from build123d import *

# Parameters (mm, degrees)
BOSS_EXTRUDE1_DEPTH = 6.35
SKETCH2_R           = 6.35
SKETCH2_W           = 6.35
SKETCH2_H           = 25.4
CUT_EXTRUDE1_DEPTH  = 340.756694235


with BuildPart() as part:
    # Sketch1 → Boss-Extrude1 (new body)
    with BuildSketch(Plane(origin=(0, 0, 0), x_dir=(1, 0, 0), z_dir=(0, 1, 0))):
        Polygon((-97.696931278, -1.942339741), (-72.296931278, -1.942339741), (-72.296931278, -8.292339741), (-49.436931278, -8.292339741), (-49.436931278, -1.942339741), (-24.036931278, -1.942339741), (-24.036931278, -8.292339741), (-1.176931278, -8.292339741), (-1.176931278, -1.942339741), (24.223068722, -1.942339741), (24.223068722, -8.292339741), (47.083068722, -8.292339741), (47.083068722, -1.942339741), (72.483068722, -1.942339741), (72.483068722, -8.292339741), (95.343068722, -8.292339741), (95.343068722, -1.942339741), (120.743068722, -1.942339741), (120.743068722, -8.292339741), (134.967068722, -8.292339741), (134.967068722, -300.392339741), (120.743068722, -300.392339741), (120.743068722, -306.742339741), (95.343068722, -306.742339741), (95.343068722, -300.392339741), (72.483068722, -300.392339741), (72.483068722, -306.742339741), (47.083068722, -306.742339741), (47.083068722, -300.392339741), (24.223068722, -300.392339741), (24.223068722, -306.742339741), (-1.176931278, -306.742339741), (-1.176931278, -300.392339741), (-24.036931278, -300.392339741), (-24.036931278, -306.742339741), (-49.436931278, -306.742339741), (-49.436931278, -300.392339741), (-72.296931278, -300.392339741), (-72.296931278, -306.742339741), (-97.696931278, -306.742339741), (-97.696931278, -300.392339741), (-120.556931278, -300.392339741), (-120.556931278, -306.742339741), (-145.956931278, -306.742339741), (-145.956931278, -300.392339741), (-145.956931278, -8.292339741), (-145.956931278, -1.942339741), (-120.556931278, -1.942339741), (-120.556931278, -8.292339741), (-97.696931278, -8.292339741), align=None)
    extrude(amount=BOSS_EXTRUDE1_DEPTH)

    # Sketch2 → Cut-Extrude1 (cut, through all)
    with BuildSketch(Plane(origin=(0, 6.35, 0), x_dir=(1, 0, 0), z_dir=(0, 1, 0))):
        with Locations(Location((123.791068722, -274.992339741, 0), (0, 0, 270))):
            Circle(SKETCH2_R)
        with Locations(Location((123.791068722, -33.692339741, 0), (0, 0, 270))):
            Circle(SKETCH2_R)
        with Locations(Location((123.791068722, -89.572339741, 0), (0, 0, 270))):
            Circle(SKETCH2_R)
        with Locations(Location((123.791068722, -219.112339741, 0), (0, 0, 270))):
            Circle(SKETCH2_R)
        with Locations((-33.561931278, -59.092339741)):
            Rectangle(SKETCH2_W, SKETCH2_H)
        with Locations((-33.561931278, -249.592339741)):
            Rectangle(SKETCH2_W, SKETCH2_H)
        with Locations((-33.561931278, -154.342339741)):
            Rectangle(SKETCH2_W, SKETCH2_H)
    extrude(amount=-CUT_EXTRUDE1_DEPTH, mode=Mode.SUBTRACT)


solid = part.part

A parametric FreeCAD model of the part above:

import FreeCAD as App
import Part
import Sketcher
from FreeCAD import Vector
Q = App.Units.Quantity

doc = App.newDocument("Part")
body = doc.addObject("PartDesign::Body", "Body")

# Sketch on XZ plane
sketch1 = body.newObject("Sketcher::SketchObject", "Sketch")
sketch1.AttachmentSupport = (doc.getObject("XZ_Plane"), [""])
sketch1.MapMode = "FlatFace"
sketch1.addGeometry(Part.LineSegment(Vector(-72, 2, 0), Vector(-98, 2, 0)), False)
sketch1.addGeometry(Part.LineSegment(Vector(-98, 2, 0), Vector(-98, 8, 0)), False)
sketch1.addGeometry(Part.LineSegment(Vector(-98, 8, 0), Vector(-121, 8, 0)), False)
sketch1.addGeometry(Part.LineSegment(Vector(-121, 8, 0), Vector(-121, 2, 0)), False)
sketch1.addGeometry(Part.LineSegment(Vector(-121, 2, 0), Vector(-146, 2, 0)), False)
sketch1.addGeometry(Part.LineSegment(Vector(-146, 2, 0), Vector(-146, 307, 0)), False)
sketch1.addGeometry(Part.LineSegment(Vector(-146, 307, 0), Vector(-121, 307, 0)), False)
sketch1.addGeometry(Part.LineSegment(Vector(-121, 307, 0), Vector(-121, 300, 0)), False)
sketch1.addGeometry(Part.LineSegment(Vector(-121, 300, 0), Vector(-98, 300, 0)), False)
sketch1.addGeometry(Part.LineSegment(Vector(-98, 300, 0), Vector(-98, 307, 0)), False)
sketch1.addGeometry(Part.LineSegment(Vector(-98, 307, 0), Vector(-72, 307, 0)), False)
sketch1.addGeometry(Part.LineSegment(Vector(-72, 307, 0), Vector(-72, 300, 0)), False)
sketch1.addGeometry(Part.LineSegment(Vector(-72, 300, 0), Vector(-49, 300, 0)), False)
sketch1.addGeometry(Part.LineSegment(Vector(-49, 300, 0), Vector(-49, 307, 0)), False)
sketch1.addGeometry(Part.LineSegment(Vector(-49, 307, 0), Vector(-24, 307, 0)), False)
sketch1.addGeometry(Part.LineSegment(Vector(-24, 307, 0), Vector(-24, 300, 0)), False)
sketch1.addGeometry(Part.LineSegment(Vector(-24, 300, 0), Vector(-1, 300, 0)), False)
sketch1.addGeometry(Part.LineSegment(Vector(-1, 300, 0), Vector(-1, 307, 0)), False)
sketch1.addGeometry(Part.LineSegment(Vector(-1, 307, 0), Vector(24, 307, 0)), False)
sketch1.addGeometry(Part.LineSegment(Vector(24, 307, 0), Vector(24, 300, 0)), False)
sketch1.addGeometry(Part.LineSegment(Vector(24, 300, 0), Vector(47, 300, 0)), False)
sketch1.addGeometry(Part.LineSegment(Vector(47, 300, 0), Vector(47, 307, 0)), False)
sketch1.addGeometry(Part.LineSegment(Vector(47, 307, 0), Vector(72, 307, 0)), False)
sketch1.addGeometry(Part.LineSegment(Vector(72, 307, 0), Vector(72, 300, 0)), False)
sketch1.addGeometry(Part.LineSegment(Vector(72, 300, 0), Vector(95, 300, 0)), False)
sketch1.addGeometry(Part.LineSegment(Vector(95, 300, 0), Vector(95, 307, 0)), False)
sketch1.addGeometry(Part.LineSegment(Vector(95, 307, 0), Vector(121, 307, 0)), False)
sketch1.addGeometry(Part.LineSegment(Vector(121, 307, 0), Vector(121, 300, 0)), False)
sketch1.addGeometry(Part.LineSegment(Vector(121, 300, 0), Vector(135, 300, 0)), False)
sketch1.addGeometry(Part.LineSegment(Vector(135, 300, 0), Vector(135, 8, 0)), False)
sketch1.addGeometry(Part.LineSegment(Vector(135, 8, 0), Vector(121, 8, 0)), False)
sketch1.addGeometry(Part.LineSegment(Vector(121, 8, 0), Vector(121, 2, 0)), False)
sketch1.addGeometry(Part.LineSegment(Vector(121, 2, 0), Vector(95, 2, 0)), False)
sketch1.addGeometry(Part.LineSegment(Vector(95, 2, 0), Vector(95, 8, 0)), False)
sketch1.addGeometry(Part.LineSegment(Vector(95, 8, 0), Vector(72, 8, 0)), False)
sketch1.addGeometry(Part.LineSegment(Vector(72, 8, 0), Vector(72, 2, 0)), False)
sketch1.addGeometry(Part.LineSegment(Vector(72, 2, 0), Vector(47, 2, 0)), False)
sketch1.addGeometry(Part.LineSegment(Vector(47, 2, 0), Vector(47, 8, 0)), False)
sketch1.addGeometry(Part.LineSegment(Vector(47, 8, 0), Vector(24, 8, 0)), False)
sketch1.addGeometry(Part.LineSegment(Vector(24, 8, 0), Vector(24, 2, 0)), False)
sketch1.addGeometry(Part.LineSegment(Vector(24, 2, 0), Vector(-1, 2, 0)), False)
sketch1.addGeometry(Part.LineSegment(Vector(-1, 2, 0), Vector(-1, 8, 0)), False)
sketch1.addGeometry(Part.LineSegment(Vector(-1, 8, 0), Vector(-24, 8, 0)), False)
sketch1.addGeometry(Part.LineSegment(Vector(-24, 8, 0), Vector(-24, 2, 0)), False)
sketch1.addGeometry(Part.LineSegment(Vector(-24, 2, 0), Vector(-49, 2, 0)), False)
sketch1.addGeometry(Part.LineSegment(Vector(-49, 2, 0), Vector(-49, 8, 0)), False)
sketch1.addGeometry(Part.LineSegment(Vector(-49, 8, 0), Vector(-72, 8, 0)), False)
sketch1.addGeometry(Part.LineSegment(Vector(-72, 8, 0), Vector(-72, 2, 0)), False)
sketch1.addConstraint(Sketcher.Constraint("Coincident", 0, 2, 1, 1))
sketch1.addConstraint(Sketcher.Constraint("Coincident", 1, 2, 2, 1))
sketch1.addConstraint(Sketcher.Constraint("Coincident", 2, 2, 3, 1))
sketch1.addConstraint(Sketcher.Constraint("Coincident", 3, 2, 4, 1))
sketch1.addConstraint(Sketcher.Constraint("Coincident", 4, 2, 5, 1))
sketch1.addConstraint(Sketcher.Constraint("Coincident", 5, 2, 6, 1))
sketch1.addConstraint(Sketcher.Constraint("Coincident", 6, 2, 7, 1))
sketch1.addConstraint(Sketcher.Constraint("Coincident", 7, 2, 8, 1))
sketch1.addConstraint(Sketcher.Constraint("Coincident", 8, 2, 9, 1))
sketch1.addConstraint(Sketcher.Constraint("Coincident", 9, 2, 10, 1))
sketch1.addConstraint(Sketcher.Constraint("Coincident", 10, 2, 11, 1))
sketch1.addConstraint(Sketcher.Constraint("Coincident", 11, 2, 12, 1))
sketch1.addConstraint(Sketcher.Constraint("Coincident", 12, 2, 13, 1))
sketch1.addConstraint(Sketcher.Constraint("Coincident", 13, 2, 14, 1))
sketch1.addConstraint(Sketcher.Constraint("Coincident", 14, 2, 15, 1))
sketch1.addConstraint(Sketcher.Constraint("Coincident", 15, 2, 16, 1))
sketch1.addConstraint(Sketcher.Constraint("Coincident", 16, 2, 17, 1))
sketch1.addConstraint(Sketcher.Constraint("Coincident", 17, 2, 18, 1))
sketch1.addConstraint(Sketcher.Constraint("Coincident", 18, 2, 19, 1))
sketch1.addConstraint(Sketcher.Constraint("Coincident", 19, 2, 20, 1))
sketch1.addConstraint(Sketcher.Constraint("Coincident", 20, 2, 21, 1))
sketch1.addConstraint(Sketcher.Constraint("Coincident", 21, 2, 22, 1))
sketch1.addConstraint(Sketcher.Constraint("Coincident", 22, 2, 23, 1))
sketch1.addConstraint(Sketcher.Constraint("Coincident", 23, 2, 24, 1))
sketch1.addConstraint(Sketcher.Constraint("Coincident", 24, 2, 25, 1))
sketch1.addConstraint(Sketcher.Constraint("Coincident", 25, 2, 26, 1))
sketch1.addConstraint(Sketcher.Constraint("Coincident", 26, 2, 27, 1))
sketch1.addConstraint(Sketcher.Constraint("Coincident", 27, 2, 28, 1))
sketch1.addConstraint(Sketcher.Constraint("Coincident", 28, 2, 29, 1))
sketch1.addConstraint(Sketcher.Constraint("Coincident", 29, 2, 30, 1))
sketch1.addConstraint(Sketcher.Constraint("Coincident", 30, 2, 31, 1))
sketch1.addConstraint(Sketcher.Constraint("Coincident", 31, 2, 32, 1))
sketch1.addConstraint(Sketcher.Constraint("Coincident", 32, 2, 33, 1))
sketch1.addConstraint(Sketcher.Constraint("Coincident", 33, 2, 34, 1))
sketch1.addConstraint(Sketcher.Constraint("Coincident", 34, 2, 35, 1))
sketch1.addConstraint(Sketcher.Constraint("Coincident", 35, 2, 36, 1))
sketch1.addConstraint(Sketcher.Constraint("Coincident", 36, 2, 37, 1))
sketch1.addConstraint(Sketcher.Constraint("Coincident", 37, 2, 38, 1))
sketch1.addConstraint(Sketcher.Constraint("Coincident", 38, 2, 39, 1))
sketch1.addConstraint(Sketcher.Constraint("Coincident", 39, 2, 40, 1))
sketch1.addConstraint(Sketcher.Constraint("Coincident", 40, 2, 41, 1))
sketch1.addConstraint(Sketcher.Constraint("Coincident", 41, 2, 42, 1))
sketch1.addConstraint(Sketcher.Constraint("Coincident", 42, 2, 43, 1))
sketch1.addConstraint(Sketcher.Constraint("Coincident", 43, 2, 44, 1))
sketch1.addConstraint(Sketcher.Constraint("Coincident", 44, 2, 45, 1))
sketch1.addConstraint(Sketcher.Constraint("Coincident", 45, 2, 46, 1))
sketch1.addConstraint(Sketcher.Constraint("Coincident", 46, 2, 47, 1))
sketch1.addConstraint(Sketcher.Constraint("Coincident", 47, 2, 0, 1))
sketch1.addConstraint(Sketcher.Constraint("Horizontal", 0))
sketch1.addConstraint(Sketcher.Constraint("Vertical", 1))
sketch1.addConstraint(Sketcher.Constraint("Horizontal", 2))
sketch1.addConstraint(Sketcher.Constraint("Vertical", 3))
sketch1.addConstraint(Sketcher.Constraint("Horizontal", 4))
sketch1.addConstraint(Sketcher.Constraint("Vertical", 5))
sketch1.addConstraint(Sketcher.Constraint("Horizontal", 6))
sketch1.addConstraint(Sketcher.Constraint("Vertical", 7))
sketch1.addConstraint(Sketcher.Constraint("Horizontal", 8))
sketch1.addConstraint(Sketcher.Constraint("Vertical", 9))
sketch1.addConstraint(Sketcher.Constraint("Horizontal", 10))
sketch1.addConstraint(Sketcher.Constraint("Vertical", 11))
sketch1.addConstraint(Sketcher.Constraint("Horizontal", 12))
sketch1.addConstraint(Sketcher.Constraint("Vertical", 13))
sketch1.addConstraint(Sketcher.Constraint("Horizontal", 14))
sketch1.addConstraint(Sketcher.Constraint("Vertical", 15))
sketch1.addConstraint(Sketcher.Constraint("Horizontal", 16))
sketch1.addConstraint(Sketcher.Constraint("Vertical", 17))
sketch1.addConstraint(Sketcher.Constraint("Horizontal", 18))
sketch1.addConstraint(Sketcher.Constraint("Vertical", 19))
sketch1.addConstraint(Sketcher.Constraint("Horizontal", 20))
sketch1.addConstraint(Sketcher.Constraint("Vertical", 21))
sketch1.addConstraint(Sketcher.Constraint("Horizontal", 22))
sketch1.addConstraint(Sketcher.Constraint("Vertical", 23))
sketch1.addConstraint(Sketcher.Constraint("Horizontal", 24))
sketch1.addConstraint(Sketcher.Constraint("Vertical", 25))
sketch1.addConstraint(Sketcher.Constraint("Horizontal", 26))
sketch1.addConstraint(Sketcher.Constraint("Vertical", 27))
sketch1.addConstraint(Sketcher.Constraint("Horizontal", 28))
sketch1.addConstraint(Sketcher.Constraint("Vertical", 29))
sketch1.addConstraint(Sketcher.Constraint("Horizontal", 30))
sketch1.addConstraint(Sketcher.Constraint("Vertical", 31))
sketch1.addConstraint(Sketcher.Constraint("Horizontal", 32))
sketch1.addConstraint(Sketcher.Constraint("Vertical", 33))
sketch1.addConstraint(Sketcher.Constraint("Horizontal", 34))
sketch1.addConstraint(Sketcher.Constraint("Vertical", 35))
sketch1.addConstraint(Sketcher.Constraint("Horizontal", 36))
sketch1.addConstraint(Sketcher.Constraint("Vertical", 37))
sketch1.addConstraint(Sketcher.Constraint("Horizontal", 38))
sketch1.addConstraint(Sketcher.Constraint("Vertical", 39))
sketch1.addConstraint(Sketcher.Constraint("Horizontal", 40))
sketch1.addConstraint(Sketcher.Constraint("Vertical", 41))
sketch1.addConstraint(Sketcher.Constraint("Horizontal", 42))
sketch1.addConstraint(Sketcher.Constraint("Vertical", 43))
sketch1.addConstraint(Sketcher.Constraint("Horizontal", 44))
sketch1.addConstraint(Sketcher.Constraint("Vertical", 45))
sketch1.addConstraint(Sketcher.Constraint("Horizontal", 46))
sketch1.addConstraint(Sketcher.Constraint("Vertical", 47))
sketch1.addConstraint(Sketcher.Constraint("Horizontal", 0, 2, 3, 2))
sketch1.addConstraint(Sketcher.Constraint("Horizontal", 6, 2, 9, 2))
sketch1.addConstraint(Sketcher.Constraint("Horizontal", 8, 2, 11, 2))
sketch1.addConstraint(Sketcher.Constraint("Horizontal", 10, 2, 13, 2))
sketch1.addConstraint(Sketcher.Constraint("Horizontal", 12, 2, 15, 2))
sketch1.addConstraint(Sketcher.Constraint("Horizontal", 14, 2, 17, 2))
sketch1.addConstraint(Sketcher.Constraint("Horizontal", 16, 2, 19, 2))
sketch1.addConstraint(Sketcher.Constraint("Horizontal", 18, 2, 21, 2))
sketch1.addConstraint(Sketcher.Constraint("Horizontal", 20, 2, 23, 2))
sketch1.addConstraint(Sketcher.Constraint("Horizontal", 22, 2, 25, 2))
sketch1.addConstraint(Sketcher.Constraint("Horizontal", 24, 2, 27, 2))
sketch1.addConstraint(Sketcher.Constraint("Horizontal", 2, 2, 29, 2))
sketch1.addConstraint(Sketcher.Constraint("Horizontal", 4, 2, 31, 2))
sketch1.addConstraint(Sketcher.Constraint("Horizontal", 30, 2, 33, 2))
sketch1.addConstraint(Sketcher.Constraint("Horizontal", 32, 2, 35, 2))
sketch1.addConstraint(Sketcher.Constraint("Horizontal", 34, 2, 37, 2))
sketch1.addConstraint(Sketcher.Constraint("Horizontal", 36, 2, 39, 2))
sketch1.addConstraint(Sketcher.Constraint("Horizontal", 38, 2, 41, 2))
sketch1.addConstraint(Sketcher.Constraint("Horizontal", 40, 2, 43, 2))
sketch1.addConstraint(Sketcher.Constraint("Horizontal", 42, 2, 45, 2))
sketch1.addConstraint(Sketcher.Constraint("Vertical", 3, 2, 6, 2))
sketch1.addConstraint(Sketcher.Constraint("Vertical", 1, 2, 8, 2))
sketch1.addConstraint(Sketcher.Constraint("Vertical", 27, 2, 30, 2))
sketch1.addConstraint(Sketcher.Constraint("Vertical", 25, 2, 32, 2))
sketch1.addConstraint(Sketcher.Constraint("Vertical", 23, 2, 34, 2))
sketch1.addConstraint(Sketcher.Constraint("Vertical", 21, 2, 36, 2))
sketch1.addConstraint(Sketcher.Constraint("Vertical", 19, 2, 38, 2))
sketch1.addConstraint(Sketcher.Constraint("Vertical", 17, 2, 40, 2))
sketch1.addConstraint(Sketcher.Constraint("Vertical", 15, 2, 42, 2))
sketch1.addConstraint(Sketcher.Constraint("Vertical", 13, 2, 44, 2))
sketch1.addConstraint(Sketcher.Constraint("Vertical", 11, 2, 46, 2))
sketch1.addConstraint(Sketcher.Constraint("Equal", 0, 4))
sketch1.addConstraint(Sketcher.Constraint("Equal", 8, 12))
sketch1.addConstraint(Sketcher.Constraint("Equal", 10, 14))
sketch1.addConstraint(Sketcher.Constraint("Equal", 12, 16))
sketch1.addConstraint(Sketcher.Constraint("Equal", 14, 18))
sketch1.addConstraint(Sketcher.Constraint("Equal", 16, 20))
sketch1.addConstraint(Sketcher.Constraint("Equal", 18, 22))
sketch1.addConstraint(Sketcher.Constraint("Equal", 20, 24))
sketch1.addConstraint(Sketcher.Constraint("Equal", 22, 26))
sketch1.addConstraint(Sketcher.Constraint("Equal", 3, 7))
sketch1.addConstraint(Sketcher.Constraint("DistanceX", 0, 2, 0, 1, Q("1 in")))
sketch1.addConstraint(Sketcher.Constraint("DistanceY", 5, 1, 5, 2, Q("12 in")))
sketch1.addConstraint(Sketcher.Constraint("DistanceX", 2, 2, 2, 1, Q("0.9 in")))
sketch1.addConstraint(Sketcher.Constraint("DistanceY", 29, 2, 29, 1, Q("11.5 in")))
sketch1.addConstraint(Sketcher.Constraint("DistanceX", 28, 1, 28, 2, Q("0.56 in")))
sketch1.addConstraint(Sketcher.Constraint("DistanceX", 0, 2, -1, 1, Q("97.696931 mm")))
sketch1.addConstraint(Sketcher.Constraint("DistanceY", -1, 1, 0, 2, Q("1.94234 mm")))
pad1 = body.newObject("PartDesign::Pad", "Pad")
pad1.Profile = sketch1
pad1.Length = Q("0.25 in")
pad1.Reversed = True

# Sketch on XZ plane
sketch2 = body.newObject("Sketcher::SketchObject", "Sketch001")
sketch2.AttachmentSupport = (doc.getObject("XZ_Plane"), [""])
sketch2.MapMode = "FlatFace"
sketch2.AttachmentOffset = App.Placement(Vector(0, 0, -0.25 * 25.4), App.Rotation())
sketch2.addGeometry(Part.Circle(Vector(124, 275, 0), Vector(0, 0, 1), 6), False)
sketch2.addGeometry(Part.Circle(Vector(124, 34, 0), Vector(0, 0, 1), 6), False)
sketch2.addGeometry(Part.Circle(Vector(124, 90, 0), Vector(0, 0, 1), 6), False)
sketch2.addGeometry(Part.Circle(Vector(124, 219, 0), Vector(0, 0, 1), 6), False)
sketch2.addGeometry(Part.LineSegment(Vector(-37, 46, 0), Vector(-37, 72, 0)), False)
sketch2.addGeometry(Part.LineSegment(Vector(-37, 72, 0), Vector(-30, 72, 0)), False)
sketch2.addGeometry(Part.LineSegment(Vector(-30, 72, 0), Vector(-30, 46, 0)), False)
sketch2.addGeometry(Part.LineSegment(Vector(-30, 46, 0), Vector(-37, 46, 0)), False)
sketch2.addGeometry(Part.LineSegment(Vector(-37, 237, 0), Vector(-37, 262, 0)), False)
sketch2.addGeometry(Part.LineSegment(Vector(-37, 262, 0), Vector(-30, 262, 0)), False)
sketch2.addGeometry(Part.LineSegment(Vector(-30, 262, 0), Vector(-30, 237, 0)), False)
sketch2.addGeometry(Part.LineSegment(Vector(-30, 237, 0), Vector(-37, 237, 0)), False)
sketch2.addGeometry(Part.LineSegment(Vector(-37, 142, 0), Vector(-37, 167, 0)), False)
sketch2.addGeometry(Part.LineSegment(Vector(-37, 167, 0), Vector(-30, 167, 0)), False)
sketch2.addGeometry(Part.LineSegment(Vector(-30, 167, 0), Vector(-30, 142, 0)), False)
sketch2.addGeometry(Part.LineSegment(Vector(-30, 142, 0), Vector(-37, 142, 0)), False)
sketch2.addConstraint(Sketcher.Constraint("Coincident", 4, 2, 5, 1))
sketch2.addConstraint(Sketcher.Constraint("Coincident", 5, 2, 6, 1))
sketch2.addConstraint(Sketcher.Constraint("Coincident", 6, 2, 7, 1))
sketch2.addConstraint(Sketcher.Constraint("Coincident", 7, 2, 4, 1))
sketch2.addConstraint(Sketcher.Constraint("Coincident", 8, 2, 9, 1))
sketch2.addConstraint(Sketcher.Constraint("Coincident", 9, 2, 10, 1))
sketch2.addConstraint(Sketcher.Constraint("Coincident", 10, 2, 11, 1))
sketch2.addConstraint(Sketcher.Constraint("Coincident", 11, 2, 8, 1))
sketch2.addConstraint(Sketcher.Constraint("Coincident", 12, 2, 13, 1))
sketch2.addConstraint(Sketcher.Constraint("Coincident", 13, 2, 14, 1))
sketch2.addConstraint(Sketcher.Constraint("Coincident", 14, 2, 15, 1))
sketch2.addConstraint(Sketcher.Constraint("Coincident", 15, 2, 12, 1))
sketch2.addConstraint(Sketcher.Constraint("Vertical", 4))
sketch2.addConstraint(Sketcher.Constraint("Horizontal", 5))
sketch2.addConstraint(Sketcher.Constraint("Vertical", 6))
sketch2.addConstraint(Sketcher.Constraint("Horizontal", 7))
sketch2.addConstraint(Sketcher.Constraint("Vertical", 8))
sketch2.addConstraint(Sketcher.Constraint("Horizontal", 9))
sketch2.addConstraint(Sketcher.Constraint("Vertical", 10))
sketch2.addConstraint(Sketcher.Constraint("Horizontal", 11))
sketch2.addConstraint(Sketcher.Constraint("Vertical", 12))
sketch2.addConstraint(Sketcher.Constraint("Horizontal", 13))
sketch2.addConstraint(Sketcher.Constraint("Vertical", 14))
sketch2.addConstraint(Sketcher.Constraint("Horizontal", 15))
sketch2.addConstraint(Sketcher.Constraint("Equal", 0, 1))
sketch2.addConstraint(Sketcher.Constraint("Equal", 1, 2))
sketch2.addConstraint(Sketcher.Constraint("Equal", 2, 3))
sketch2.addConstraint(Sketcher.Constraint("Vertical", 0, 3, 1, 3))
sketch2.addConstraint(Sketcher.Constraint("Vertical", 1, 3, 2, 3))
sketch2.addConstraint(Sketcher.Constraint("Vertical", 2, 3, 3, 3))
sketch2.addConstraint(Sketcher.Constraint("Vertical", 7, 2, 8, 2))
sketch2.addConstraint(Sketcher.Constraint("Vertical", 6, 2, 9, 2))
sketch2.addConstraint(Sketcher.Constraint("Vertical", 11, 2, 12, 2))
sketch2.addConstraint(Sketcher.Constraint("Vertical", 10, 2, 13, 2))
sketch2.addConstraint(Sketcher.Constraint("Equal", 6, 8))
sketch2.addConstraint(Sketcher.Constraint("Equal", 10, 12))
sketch2.addConstraint(Sketcher.Constraint("Diameter", 0, Q("0.5 in")))
sketch2.addConstraint(Sketcher.Constraint("DistanceY", 4, 1, 4, 2, Q("1 in")))
sketch2.addConstraint(Sketcher.Constraint("DistanceY", 4, 2, 0, 3, Q("8 in")))
sketch2.addConstraint(Sketcher.Constraint("DistanceX", 5, 1, 5, 2, Q("0.25 in")))
sketch2.addConstraint(Sketcher.Constraint("DistanceY", 1, 3, 0, 3, Q("9.5 in")))
sketch2.addConstraint(Sketcher.Constraint("DistanceY", 1, 3, 2, 3, Q("2.2 in")))
sketch2.addConstraint(Sketcher.Constraint("DistanceY", 3, 3, 0, 3, Q("2.2 in")))
sketch2.addConstraint(Sketcher.Constraint("DistanceY", 8, 2, 0, 3, Q("0.5 in")))
sketch2.addConstraint(Sketcher.Constraint("DistanceX", 4, 2, 2, 3, Q("6.32 in")))
sketch2.addConstraint(Sketcher.Constraint("DistanceY", 12, 2, 11, 2, Q("2.75 in")))
sketch2.addConstraint(Sketcher.Constraint("DistanceX", -1, 1, 0, 3, Q("123.791069 mm")))
sketch2.addConstraint(Sketcher.Constraint("DistanceY", -1, 1, 0, 3, Q("274.99234 mm")))
pocket1 = body.newObject("PartDesign::Pocket", "Pocket")
pocket1.Profile = sketch2
pocket1.Type = "ThroughAll"
pocket1.Reversed = True

doc.recompute()
